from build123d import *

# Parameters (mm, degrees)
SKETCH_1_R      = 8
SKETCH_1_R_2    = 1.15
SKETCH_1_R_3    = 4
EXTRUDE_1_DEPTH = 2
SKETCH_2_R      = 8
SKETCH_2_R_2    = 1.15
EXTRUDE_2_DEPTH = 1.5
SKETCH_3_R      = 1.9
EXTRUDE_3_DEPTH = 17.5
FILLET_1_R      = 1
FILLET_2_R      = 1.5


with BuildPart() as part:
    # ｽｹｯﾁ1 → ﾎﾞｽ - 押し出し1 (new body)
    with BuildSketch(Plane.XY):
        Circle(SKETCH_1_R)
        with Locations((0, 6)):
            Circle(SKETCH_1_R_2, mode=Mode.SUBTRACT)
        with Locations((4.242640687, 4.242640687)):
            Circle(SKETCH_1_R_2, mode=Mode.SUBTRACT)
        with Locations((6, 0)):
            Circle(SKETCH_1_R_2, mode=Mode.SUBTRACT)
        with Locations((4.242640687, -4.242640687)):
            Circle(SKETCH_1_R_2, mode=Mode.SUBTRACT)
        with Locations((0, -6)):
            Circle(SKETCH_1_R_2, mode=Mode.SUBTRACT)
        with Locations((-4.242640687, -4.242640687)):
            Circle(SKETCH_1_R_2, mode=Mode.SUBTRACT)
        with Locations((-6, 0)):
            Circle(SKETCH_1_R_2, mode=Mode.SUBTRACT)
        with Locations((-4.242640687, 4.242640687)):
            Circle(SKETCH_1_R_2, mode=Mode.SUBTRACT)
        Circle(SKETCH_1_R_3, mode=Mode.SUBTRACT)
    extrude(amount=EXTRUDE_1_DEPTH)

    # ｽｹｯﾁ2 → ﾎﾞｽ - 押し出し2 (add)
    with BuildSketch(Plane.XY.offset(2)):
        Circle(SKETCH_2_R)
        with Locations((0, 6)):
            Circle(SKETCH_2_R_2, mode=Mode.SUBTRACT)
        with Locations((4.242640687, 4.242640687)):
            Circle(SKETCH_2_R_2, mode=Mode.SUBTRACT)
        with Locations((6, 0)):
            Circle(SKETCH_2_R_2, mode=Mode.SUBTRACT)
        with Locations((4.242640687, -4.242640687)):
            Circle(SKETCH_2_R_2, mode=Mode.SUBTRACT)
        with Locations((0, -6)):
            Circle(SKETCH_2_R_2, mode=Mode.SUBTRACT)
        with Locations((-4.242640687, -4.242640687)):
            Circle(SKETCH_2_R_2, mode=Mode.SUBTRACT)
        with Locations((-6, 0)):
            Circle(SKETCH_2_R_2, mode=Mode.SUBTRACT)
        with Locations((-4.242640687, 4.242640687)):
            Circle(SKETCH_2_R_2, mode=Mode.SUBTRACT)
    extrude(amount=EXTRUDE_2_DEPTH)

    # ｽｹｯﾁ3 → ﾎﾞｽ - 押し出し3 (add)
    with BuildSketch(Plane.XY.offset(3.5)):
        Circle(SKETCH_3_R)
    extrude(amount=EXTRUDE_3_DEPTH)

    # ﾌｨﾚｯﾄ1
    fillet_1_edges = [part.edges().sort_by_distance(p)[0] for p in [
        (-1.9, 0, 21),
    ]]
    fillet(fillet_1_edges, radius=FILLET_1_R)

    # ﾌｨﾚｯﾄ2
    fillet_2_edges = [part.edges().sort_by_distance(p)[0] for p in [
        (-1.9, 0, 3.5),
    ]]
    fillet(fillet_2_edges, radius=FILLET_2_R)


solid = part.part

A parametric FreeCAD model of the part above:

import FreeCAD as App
import Part
import Sketcher

V = App.Vector
Q = App.Units.Quantity


def edges_at(feature, points):
    """Names of the edges that pass closest to the given points."""
    edges = feature.Shape.Edges
    near = lambda p: min(range(len(edges)), key=lambda i: edges[i].distToShape(Part.Vertex(*p))[0])
    return sorted({f"Edge{near(p) + 1}" for p in points})

doc = App.newDocument("Part")
params = doc.addObject("Spreadsheet::Sheet", "Params")
for row, (alias, value) in enumerate([
    ("sketch1_diameter", "16 mm"),
    ("sketch1_diameter2", "8 mm"),
    ("sketch1_diameter3", "2.3 mm"),
    ("pad1_length", "2 mm"),
    ("sketch2_diameter", "16 mm"),
    ("sketch2_diameter2", "2.3 mm"),
    ("pad2_length", "1.5 mm"),
    ("sketch3_diameter", "3.8 mm"),
    ("pad3_length", "17.5 mm"),
    ("fillet_radius", "1 mm"),
    ("fillet2_radius", "1.5 mm"),
], start=1):
    params.set(f"A{row}", alias)
    params.set(f"B{row}", "=" + value)
    params.setAlias(f"B{row}", alias)

body = doc.addObject("PartDesign::Body", "Body")

sketch1 = body.newObject("Sketcher::SketchObject", "Sketch")
sketch1.AttachmentSupport = (doc.getObject("XY_Plane"), [""])
sketch1.MapMode = "FlatFace"
sketch1.addGeometry(Part.Circle(V(0, 0, 0), V(0, 0, 1), 8), False)
sketch1.addGeometry(Part.Circle(V(-4.2, -4.2, 0), V(0, 0, 1), 1.1), False)
sketch1.addGeometry(Part.Circle(V(0, -6, 0), V(0, 0, 1), 1.1), False)
sketch1.addGeometry(Part.Circle(V(4.2, -4.2, 0), V(0, 0, 1), 1.1), False)
sketch1.addGeometry(Part.Circle(V(-6, 0, 0), V(0, 0, 1), 1.1), False)
sketch1.addGeometry(Part.Circle(V(0, 0, 0), V(0, 0, 1), 4), False)
sketch1.addGeometry(Part.Circle(V(-4.2, 4.2, 0), V(0, 0, 1), 1.1), False)
sketch1.addGeometry(Part.Circle(V(0, 6, 0), V(0, 0, 1), 1.1), False)
sketch1.addGeometry(Part.Circle(V(6, 0, 0), V(0, 0, 1), 1.1), False)
sketch1.addGeometry(Part.Circle(V(4.2, 4.2, 0), V(0, 0, 1), 1.1), False)
sketch1.addConstraint(Sketcher.Constraint("Coincident", 0, 3, -1, 1))
sketch1.addConstraint(Sketcher.Constraint("Coincident", 5, 3, -1, 1))
sketch1.addConstraint(Sketcher.Constraint("Equal", 1, 2))
sketch1.addConstraint(Sketcher.Constraint("Equal", 2, 3))
sketch1.addConstraint(Sketcher.Constraint("Equal", 3, 4))
sketch1.addConstraint(Sketcher.Constraint("Equal", 4, 6))
sketch1.addConstraint(Sketcher.Constraint("Equal", 6, 7))
sketch1.addConstraint(Sketcher.Constraint("Equal", 7, 8))
sketch1.addConstraint(Sketcher.Constraint("Equal", 8, 9))
sketch1.addConstraint(Sketcher.Constraint("Symmetric", 3, 3, 6, 3, -1, 1))
sketch1.addConstraint(Sketcher.Constraint("Symmetric", 2, 3, 7, 3, -1, 1))
sketch1.addConstraint(Sketcher.Constraint("Symmetric", 4, 3, 8, 3, -1, 1))
sketch1.addConstraint(Sketcher.Constraint("Symmetric", 1, 3, 9, 3, -1, 1))
sketch1.addConstraint(Sketcher.Constraint("Symmetric", 1, 3, 3, 3, -2))
sketch1.addConstraint(Sketcher.Constraint("PointOnObject", 2, 3, -2))
sketch1.addConstraint(Sketcher.Constraint("PointOnObject", 4, 3, -1))
sketch1.addConstraint(Sketcher.Constraint("Diameter", 0, Q("16 mm")))
sketch1.addConstraint(Sketcher.Constraint("Diameter", 5, Q("8 mm")))
sketch1.addConstraint(Sketcher.Constraint("Diameter", 1, Q("2.3 mm")))
sketch1.addConstraint(Sketcher.Constraint("DistanceY", 2, 3, -1, 1, Q("6 mm")))
sketch1.addConstraint(Sketcher.Constraint("DistanceX", 4, 3, -1, 1, Q("6 mm")))
sketch1.addConstraint(Sketcher.Constraint("DistanceX", 1, 3, -1, 1, Q("4.242641 mm")))
sketch1.addConstraint(Sketcher.Constraint("DistanceY", 1, 3, -1, 1, Q("4.242641 mm")))
sketch1.setExpression("Constraints[16]", "Params.sketch1_diameter")
sketch1.setExpression("Constraints[17]", "Params.sketch1_diameter2")
sketch1.setExpression("Constraints[18]", "Params.sketch1_diameter3")
pad1 = body.newObject("PartDesign::Pad", "Pad")
pad1.Profile = sketch1
pad1.setExpression("Length", "Params.pad1_length")

sketch2 = body.newObject("Sketcher::SketchObject", "Sketch001")
sketch2.AttachmentSupport = (doc.getObject("XY_Plane"), [""])
sketch2.MapMode = "FlatFace"
sketch2.AttachmentOffset = App.Placement(V(0, 0, 2), App.Rotation())
sketch2.addGeometry(Part.Circle(V(0, 0, 0), V(0, 0, 1), 8), False)
sketch2.addGeometry(Part.Circle(V(-4.2, -4.2, 0), V(0, 0, 1), 1.1), False)
sketch2.addGeometry(Part.Circle(V(0, -6, 0), V(0, 0, 1), 1.1), False)
sketch2.addGeometry(Part.Circle(V(4.2, -4.2, 0), V(0, 0, 1), 1.1), False)
sketch2.addGeometry(Part.Circle(V(-6, 0, 0), V(0, 0, 1), 1.1), False)
sketch2.addGeometry(Part.Circle(V(-4.2, 4.2, 0), V(0, 0, 1), 1.1), False)
sketch2.addGeometry(Part.Circle(V(0, 6, 0), V(0, 0, 1), 1.1), False)
sketch2.addGeometry(Part.Circle(V(6, 0, 0), V(0, 0, 1), 1.1), False)
sketch2.addGeometry(Part.Circle(V(4.2, 4.2, 0), V(0, 0, 1), 1.1), False)
sketch2.addConstraint(Sketcher.Constraint("Coincident", 0, 3, -1, 1))
sketch2.addConstraint(Sketcher.Constraint("Equal", 1, 2))
sketch2.addConstraint(Sketcher.Constraint("Equal", 2, 3))
sketch2.addConstraint(Sketcher.Constraint("Equal", 3, 4))
sketch2.addConstraint(Sketcher.Constraint("Equal", 4, 5))
sketch2.addConstraint(Sketcher.Constraint("Equal", 5, 6))
sketch2.addConstraint(Sketcher.Constraint("Equal", 6, 7))
sketch2.addConstraint(Sketcher.Constraint("Equal", 7, 8))
sketch2.addConstraint(Sketcher.Constraint("Symmetric", 3, 3, 5, 3, -1, 1))
sketch2.addConstraint(Sketcher.Constraint("Symmetric", 2, 3, 6, 3, -1, 1))
sketch2.addConstraint(Sketcher.Constraint("Symmetric", 4, 3, 7, 3, -1, 1))
sketch2.addConstraint(Sketcher.Constraint("Symmetric", 1, 3, 8, 3, -1, 1))
sketch2.addConstraint(Sketcher.Constraint("Symmetric", 1, 3, 3, 3, -2))
sketch2.addConstraint(Sketcher.Constraint("PointOnObject", 2, 3, -2))
sketch2.addConstraint(Sketcher.Constraint("PointOnObject", 4, 3, -1))
sketch2.addConstraint(Sketcher.Constraint("Diameter", 0, Q("16 mm")))
sketch2.addConstraint(Sketcher.Constraint("Diameter", 1, Q("2.3 mm")))
sketch2.addConstraint(Sketcher.Constraint("DistanceY", 2, 3, -1, 1, Q("6 mm")))
sketch2.addConstraint(Sketcher.Constraint("DistanceX", 4, 3, -1, 1, Q("6 mm")))
sketch2.addConstraint(Sketcher.Constraint("DistanceX", 1, 3, -1, 1, Q("4.242641 mm")))
sketch2.addConstraint(Sketcher.Constraint("DistanceY", 1, 3, -1, 1, Q("4.242641 mm")))
sketch2.setExpression("Constraints[15]", "Params.sketch2_diameter")
sketch2.setExpression("Constraints[16]", "Params.sketch2_diameter2")
pad2 = body.newObject("PartDesign::Pad", "Pad001")
pad2.Profile = sketch2
pad2.setExpression("Length", "Params.pad2_length")

sketch3 = body.newObject("Sketcher::SketchObject", "Sketch002")
sketch3.AttachmentSupport = (doc.getObject("XY_Plane"), [""])
sketch3.MapMode = "FlatFace"
sketch3.AttachmentOffset = App.Placement(V(0, 0, 3.5), App.Rotation())
sketch3.addGeometry(Part.Circle(V(0, 0, 0), V(0, 0, 1), 1.9), False)
sketch3.addConstraint(Sketcher.Constraint("Coincident", 0, 3, -1, 1))
sketch3.addConstraint(Sketcher.Constraint("Diameter", 0, Q("3.8 mm")))
sketch3.setExpression("Constraints[1]", "Params.sketch3_diameter")
pad3 = body.newObject("PartDesign::Pad", "Pad002")
pad3.Profile = sketch3
pad3.setExpression("Length", "Params.pad3_length")
doc.recompute()

fillet = body.newObject("PartDesign::Fillet", "Fillet")
fillet.Base = (pad3, edges_at(pad3, [(-1.9, 0, 21)]))
fillet.setExpression("Radius", "Params.fillet_radius")
doc.recompute()

fillet2 = body.newObject("PartDesign::Fillet", "Fillet001")
fillet2.Base = (fillet, edges_at(fillet, [(-1.9, 0, 3.5)]))
fillet2.setExpression("Radius", "Params.fillet2_radius")

doc.recompute()
